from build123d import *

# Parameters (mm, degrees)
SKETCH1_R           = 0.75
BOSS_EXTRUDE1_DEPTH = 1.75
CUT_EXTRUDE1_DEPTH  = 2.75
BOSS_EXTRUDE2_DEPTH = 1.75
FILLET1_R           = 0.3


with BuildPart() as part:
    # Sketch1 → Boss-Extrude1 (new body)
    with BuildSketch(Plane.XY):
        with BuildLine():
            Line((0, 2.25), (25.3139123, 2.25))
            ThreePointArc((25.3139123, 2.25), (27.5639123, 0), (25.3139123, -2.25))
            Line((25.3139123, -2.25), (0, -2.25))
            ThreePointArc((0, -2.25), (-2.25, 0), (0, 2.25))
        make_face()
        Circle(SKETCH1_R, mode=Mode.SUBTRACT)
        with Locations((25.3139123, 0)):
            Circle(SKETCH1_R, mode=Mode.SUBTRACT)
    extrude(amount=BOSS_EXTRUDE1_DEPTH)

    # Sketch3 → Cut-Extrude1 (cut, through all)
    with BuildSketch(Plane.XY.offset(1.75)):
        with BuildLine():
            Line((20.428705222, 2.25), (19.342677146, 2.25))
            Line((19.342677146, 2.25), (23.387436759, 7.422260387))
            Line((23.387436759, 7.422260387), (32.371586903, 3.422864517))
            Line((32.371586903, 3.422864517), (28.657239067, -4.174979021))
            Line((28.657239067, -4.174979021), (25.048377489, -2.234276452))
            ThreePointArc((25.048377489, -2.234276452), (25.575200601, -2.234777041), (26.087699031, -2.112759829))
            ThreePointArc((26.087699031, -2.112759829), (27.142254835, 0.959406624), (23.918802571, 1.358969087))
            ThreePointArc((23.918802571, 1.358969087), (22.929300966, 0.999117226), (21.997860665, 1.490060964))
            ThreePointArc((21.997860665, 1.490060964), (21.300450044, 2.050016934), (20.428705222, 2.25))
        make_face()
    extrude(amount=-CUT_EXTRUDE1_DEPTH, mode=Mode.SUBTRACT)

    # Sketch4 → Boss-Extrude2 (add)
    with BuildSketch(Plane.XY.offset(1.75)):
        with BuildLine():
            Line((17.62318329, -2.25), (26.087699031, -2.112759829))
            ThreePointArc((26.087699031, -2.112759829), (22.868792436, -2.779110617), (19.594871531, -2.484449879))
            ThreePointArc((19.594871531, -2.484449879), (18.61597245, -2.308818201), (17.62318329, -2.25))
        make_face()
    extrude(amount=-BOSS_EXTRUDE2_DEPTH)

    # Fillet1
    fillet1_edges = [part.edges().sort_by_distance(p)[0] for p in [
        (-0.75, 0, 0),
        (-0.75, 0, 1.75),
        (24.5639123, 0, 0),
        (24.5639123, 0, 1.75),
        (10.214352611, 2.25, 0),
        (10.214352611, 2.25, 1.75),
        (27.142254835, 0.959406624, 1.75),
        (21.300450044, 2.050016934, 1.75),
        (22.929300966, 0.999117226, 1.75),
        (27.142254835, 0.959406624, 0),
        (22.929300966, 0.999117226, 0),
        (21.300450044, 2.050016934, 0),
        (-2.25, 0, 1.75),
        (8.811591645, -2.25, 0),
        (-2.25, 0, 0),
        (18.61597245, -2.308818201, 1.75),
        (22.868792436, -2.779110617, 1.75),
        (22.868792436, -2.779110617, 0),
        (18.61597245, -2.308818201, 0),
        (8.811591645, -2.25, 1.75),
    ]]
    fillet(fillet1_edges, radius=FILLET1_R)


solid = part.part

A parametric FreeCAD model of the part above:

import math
import FreeCAD as App
import Part
import Sketcher
from FreeCAD import Vector


def edges_at(feature, points):
    """Names of the edges that pass closest to the given points."""
    edges = feature.Shape.Edges
    near = lambda p: min(range(len(edges)), key=lambda i: edges[i].distToShape(Part.Vertex(*p))[0])
    return sorted({f"Edge{near(p) + 1}" for p in points})

doc = App.newDocument("Part")
body = doc.addObject("PartDesign::Body", "Body")

# Sketch on XY plane
sketch1 = body.newObject("Sketcher::SketchObject", "Sketch")
sketch1.AttachmentSupport = (doc.getObject("XY_Plane"), [""])
sketch1.MapMode = "FlatFace"
sketch1.addGeometry(Part.LineSegment(Vector(25.3, 2.2, 0), Vector(0, 2.2, 0)), False)
sketch1.addGeometry(Part.ArcOfCircle(Part.Circle(Vector(0, 0, 0), Vector(0, 0, 1), 2.2), math.radians(90), math.radians(270)), False)
sketch1.addGeometry(Part.LineSegment(Vector(0, -2.2, 0), Vector(25.3, -2.2, 0)), False)
sketch1.addGeometry(Part.ArcOfCircle(Part.Circle(Vector(25.3, 0, 0), Vector(0, 0, 1), 2.2), math.radians(-90), math.radians(90)), False)
sketch1.addGeometry(Part.Circle(Vector(25.3, 0, 0), Vector(0, 0, 1), 0.8), False)
sketch1.addGeometry(Part.Circle(Vector(0, 0, 0), Vector(0, 0, 1), 0.8), False)
sketch1.addConstraint(Sketcher.Constraint("Tangent", 0, 2, 1, 1))
sketch1.addConstraint(Sketcher.Constraint("Tangent", 1, 2, 2, 1))
sketch1.addConstraint(Sketcher.Constraint("Tangent", 2, 2, 3, 1))
sketch1.addConstraint(Sketcher.Constraint("Tangent", 3, 2, 0, 1))
sketch1.addConstraint(Sketcher.Constraint("Horizontal", 0))
sketch1.addConstraint(Sketcher.Constraint("Horizontal", 2))
sketch1.addConstraint(Sketcher.Constraint("Coincident", 1, 3, -1, 1))
sketch1.addConstraint(Sketcher.Constraint("Coincident", 5, 3, -1, 1))
sketch1.addConstraint(Sketcher.Constraint("Coincident", 4, 3, 3, 3))
sketch1.addConstraint(Sketcher.Constraint("Equal", 4, 5))
sketch1.addConstraint(Sketcher.Constraint("Diameter", 4, 1.5))
sketch1.addConstraint(Sketcher.Constraint("Radius", 1, 2.25))
sketch1.addConstraint(Sketcher.Constraint("DistanceX", 0, 2, 0, 1, 25.313912))
pad1 = body.newObject("PartDesign::Pad", "Pad")
pad1.Profile = sketch1
pad1.Length = 1.75

# Sketch on XY plane
sketch2 = body.newObject("Sketcher::SketchObject", "Sketch001")
sketch2.AttachmentSupport = (doc.getObject("XY_Plane"), [""])
sketch2.MapMode = "FlatFace"
sketch2.AttachmentOffset = App.Placement(Vector(0, 0, 1.75), App.Rotation())
sketch2.addGeometry(Part.LineSegment(Vector(19.3, 2.2, 0), Vector(20.4, 2.2, 0)), False)
sketch2.addGeometry(Part.ArcOfCircle(Part.Circle(Vector(20.4, 0.2, 0), Vector(0, 0, 1), 2), math.radians(38), math.radians(90)), False)
sketch2.addGeometry(Part.ArcOfCircle(Part.Circle(Vector(23, 2.3, 0), Vector(0, 0, 1), 1.3), math.radians(-142), math.radians(-46)), False)
sketch2.addGeometry(Part.ArcOfCircle(Part.Circle(Vector(25.4, -0.1, 0), Vector(0, 0, 1), 2.1), math.radians(-70), math.radians(134)), False)
sketch2.addGeometry(Part.ArcOfCircle(Part.Circle(Vector(25.3, 0, 0), Vector(0, 0, 1), 2.3), math.radians(-97), math.radians(-70)), False)
sketch2.addGeometry(Part.LineSegment(Vector(25, -2.2, 0), Vector(28.7, -4.2, 0)), False)
sketch2.addGeometry(Part.LineSegment(Vector(28.7, -4.2, 0), Vector(32.4, 3.4, 0)), False)
sketch2.addGeometry(Part.LineSegment(Vector(32.4, 3.4, 0), Vector(23.4, 7.4, 0)), False)
sketch2.addGeometry(Part.LineSegment(Vector(23.4, 7.4, 0), Vector(19.3, 2.2, 0)), False)
sketch2.addConstraint(Sketcher.Constraint("Tangent", 0, 2, 1, 2))
sketch2.addConstraint(Sketcher.Constraint("Tangent", 1, 1, 2, 1))
sketch2.addConstraint(Sketcher.Constraint("Tangent", 2, 2, 3, 2))
sketch2.addConstraint(Sketcher.Constraint("Tangent", 3, 1, 4, 2))
sketch2.addConstraint(Sketcher.Constraint("Coincident", 4, 1, 5, 1))
sketch2.addConstraint(Sketcher.Constraint("Coincident", 5, 2, 6, 1))
sketch2.addConstraint(Sketcher.Constraint("Coincident", 6, 2, 7, 1))
sketch2.addConstraint(Sketcher.Constraint("Coincident", 7, 2, 8, 1))
sketch2.addConstraint(Sketcher.Constraint("Coincident", 8, 2, 0, 1))
sketch2.addConstraint(Sketcher.Constraint("Horizontal", 0))
sketch2.addConstraint(Sketcher.Constraint("PointOnObject", 4, 3, -1))
sketch2.addConstraint(Sketcher.Constraint("Radius", 1, 2.0))
sketch2.addConstraint(Sketcher.Constraint("Radius", 2, 1.3))
sketch2.addConstraint(Sketcher.Constraint("Radius", 4, 2.25))
sketch2.addConstraint(Sketcher.Constraint("DistanceY", -1, 1, 1, 3, 0.25))
sketch2.addConstraint(Sketcher.Constraint("Radius", 3, 2.091561))
sketch2.addConstraint(Sketcher.Constraint("Distance", 8, 6.566))
sketch2.addConstraint(Sketcher.Constraint("DistanceX", 0, 1, 0, 2, 1.086028))
sketch2.addConstraint(Sketcher.Constraint("DistanceY", -1, 1, 2, 3, 2.296101))
sketch2.addConstraint(Sketcher.Constraint("DistanceX", -1, 1, 3, 3, 25.3684))
sketch2.addConstraint(Sketcher.Constraint("DistanceX", -1, 1, 3, 1, 26.087699))
sketch2.addConstraint(Sketcher.Constraint("DistanceY", 4, 1, 3, 3, 2.085501))
sketch2.addConstraint(Sketcher.Constraint("DistanceY", 1, 1, 7, 2, 5.932199))
sketch2.addConstraint(Sketcher.Constraint("Distance", 7, 9.83413))
sketch2.addConstraint(Sketcher.Constraint("DistanceX", -1, 1, 5, 2, 28.657239))
sketch2.addConstraint(Sketcher.Constraint("DistanceY", 5, 2, -1, 1, 4.174979))
sketch2.addConstraint(Sketcher.Constraint("DistanceY", 3, 3, 6, 2, 3.57164))
pocket1 = body.newObject("PartDesign::Pocket", "Pocket")
pocket1.Profile = sketch2
pocket1.Type = "ThroughAll"

# Sketch on XY plane
sketch3 = body.newObject("Sketcher::SketchObject", "Sketch002")
sketch3.AttachmentSupport = (doc.getObject("XY_Plane"), [""])
sketch3.MapMode = "FlatFace"
sketch3.AttachmentOffset = App.Placement(Vector(0, 0, 1.75), App.Rotation())
sketch3.addGeometry(Part.LineSegment(Vector(26.1, -2.1, 0), Vector(17.6, -2.2, 0)), False)
sketch3.addGeometry(Part.ArcOfCircle(Part.Circle(Vector(17.6, -10.7, 0), Vector(0, 0, 1), 8.4), math.radians(76.44), math.radians(90)), False)
sketch3.addGeometry(Part.ArcOfCircle(Part.Circle(Vector(22.2, 8.4, 0), Vector(0, 0, 1), 11.2), math.radians(-104), math.radians(-70)), False)
sketch3.addConstraint(Sketcher.Constraint("Coincident", 0, 2, 1, 2))
sketch3.addConstraint(Sketcher.Constraint("Tangent", 1, 1, 2, 1))
sketch3.addConstraint(Sketcher.Constraint("Coincident", 2, 2, 0, 1))
sketch3.addConstraint(Sketcher.Constraint("Vertical", 1, 3, 0, 2))
sketch3.addConstraint(Sketcher.Constraint("DistanceY", 0, 2, -1, 1, 2.25))
sketch3.addConstraint(Sketcher.Constraint("Radius", 2, 11.225382))
sketch3.addConstraint(Sketcher.Constraint("Radius", 1, 8.408026))
sketch3.addConstraint(Sketcher.Constraint("DistanceX", -1, 1, 2, 2, 26.087699))
sketch3.addConstraint(Sketcher.Constraint("Distance", 0, 8.465628))
sketch3.addConstraint(Sketcher.Constraint("DistanceX", -1, 1, 2, 3, 22.227232))
pad2 = body.newObject("PartDesign::Pad", "Pad001")
pad2.Profile = sketch3
pad2.Length = 1.75
pad2.Reversed = True
doc.recompute()

fillet = body.newObject("PartDesign::Fillet", "Fillet")
fillet.Base = (pad2, edges_at(pad2, [
    (-0.75, 0, 0),
    (-0.75, 0, 1.75),
    (24.564, 0, 0),
    (24.564, 0, 1.75),
    (10.214, 2.25, 0),
    (10.214, 2.25, 1.75),
    (27.142, 0.959, 1.75),
    (21.3, 2.05, 1.75),
    (22.929, 0.999, 1.75),
    (27.142, 0.959, 0),
    (22.929, 0.999, 0),
    (21.3, 2.05, 0),
    (-2.25, 0, 1.75),
    (8.812, -2.25, 0),
    (-2.25, 0, 0),
    (18.616, -2.309, 1.75),
    (22.869, -2.779, 1.75),
    (22.869, -2.779, 0),
    (18.616, -2.309, 0),
    (8.812, -2.25, 1.75),
]))
fillet.Radius = 0.3

doc.recompute()
